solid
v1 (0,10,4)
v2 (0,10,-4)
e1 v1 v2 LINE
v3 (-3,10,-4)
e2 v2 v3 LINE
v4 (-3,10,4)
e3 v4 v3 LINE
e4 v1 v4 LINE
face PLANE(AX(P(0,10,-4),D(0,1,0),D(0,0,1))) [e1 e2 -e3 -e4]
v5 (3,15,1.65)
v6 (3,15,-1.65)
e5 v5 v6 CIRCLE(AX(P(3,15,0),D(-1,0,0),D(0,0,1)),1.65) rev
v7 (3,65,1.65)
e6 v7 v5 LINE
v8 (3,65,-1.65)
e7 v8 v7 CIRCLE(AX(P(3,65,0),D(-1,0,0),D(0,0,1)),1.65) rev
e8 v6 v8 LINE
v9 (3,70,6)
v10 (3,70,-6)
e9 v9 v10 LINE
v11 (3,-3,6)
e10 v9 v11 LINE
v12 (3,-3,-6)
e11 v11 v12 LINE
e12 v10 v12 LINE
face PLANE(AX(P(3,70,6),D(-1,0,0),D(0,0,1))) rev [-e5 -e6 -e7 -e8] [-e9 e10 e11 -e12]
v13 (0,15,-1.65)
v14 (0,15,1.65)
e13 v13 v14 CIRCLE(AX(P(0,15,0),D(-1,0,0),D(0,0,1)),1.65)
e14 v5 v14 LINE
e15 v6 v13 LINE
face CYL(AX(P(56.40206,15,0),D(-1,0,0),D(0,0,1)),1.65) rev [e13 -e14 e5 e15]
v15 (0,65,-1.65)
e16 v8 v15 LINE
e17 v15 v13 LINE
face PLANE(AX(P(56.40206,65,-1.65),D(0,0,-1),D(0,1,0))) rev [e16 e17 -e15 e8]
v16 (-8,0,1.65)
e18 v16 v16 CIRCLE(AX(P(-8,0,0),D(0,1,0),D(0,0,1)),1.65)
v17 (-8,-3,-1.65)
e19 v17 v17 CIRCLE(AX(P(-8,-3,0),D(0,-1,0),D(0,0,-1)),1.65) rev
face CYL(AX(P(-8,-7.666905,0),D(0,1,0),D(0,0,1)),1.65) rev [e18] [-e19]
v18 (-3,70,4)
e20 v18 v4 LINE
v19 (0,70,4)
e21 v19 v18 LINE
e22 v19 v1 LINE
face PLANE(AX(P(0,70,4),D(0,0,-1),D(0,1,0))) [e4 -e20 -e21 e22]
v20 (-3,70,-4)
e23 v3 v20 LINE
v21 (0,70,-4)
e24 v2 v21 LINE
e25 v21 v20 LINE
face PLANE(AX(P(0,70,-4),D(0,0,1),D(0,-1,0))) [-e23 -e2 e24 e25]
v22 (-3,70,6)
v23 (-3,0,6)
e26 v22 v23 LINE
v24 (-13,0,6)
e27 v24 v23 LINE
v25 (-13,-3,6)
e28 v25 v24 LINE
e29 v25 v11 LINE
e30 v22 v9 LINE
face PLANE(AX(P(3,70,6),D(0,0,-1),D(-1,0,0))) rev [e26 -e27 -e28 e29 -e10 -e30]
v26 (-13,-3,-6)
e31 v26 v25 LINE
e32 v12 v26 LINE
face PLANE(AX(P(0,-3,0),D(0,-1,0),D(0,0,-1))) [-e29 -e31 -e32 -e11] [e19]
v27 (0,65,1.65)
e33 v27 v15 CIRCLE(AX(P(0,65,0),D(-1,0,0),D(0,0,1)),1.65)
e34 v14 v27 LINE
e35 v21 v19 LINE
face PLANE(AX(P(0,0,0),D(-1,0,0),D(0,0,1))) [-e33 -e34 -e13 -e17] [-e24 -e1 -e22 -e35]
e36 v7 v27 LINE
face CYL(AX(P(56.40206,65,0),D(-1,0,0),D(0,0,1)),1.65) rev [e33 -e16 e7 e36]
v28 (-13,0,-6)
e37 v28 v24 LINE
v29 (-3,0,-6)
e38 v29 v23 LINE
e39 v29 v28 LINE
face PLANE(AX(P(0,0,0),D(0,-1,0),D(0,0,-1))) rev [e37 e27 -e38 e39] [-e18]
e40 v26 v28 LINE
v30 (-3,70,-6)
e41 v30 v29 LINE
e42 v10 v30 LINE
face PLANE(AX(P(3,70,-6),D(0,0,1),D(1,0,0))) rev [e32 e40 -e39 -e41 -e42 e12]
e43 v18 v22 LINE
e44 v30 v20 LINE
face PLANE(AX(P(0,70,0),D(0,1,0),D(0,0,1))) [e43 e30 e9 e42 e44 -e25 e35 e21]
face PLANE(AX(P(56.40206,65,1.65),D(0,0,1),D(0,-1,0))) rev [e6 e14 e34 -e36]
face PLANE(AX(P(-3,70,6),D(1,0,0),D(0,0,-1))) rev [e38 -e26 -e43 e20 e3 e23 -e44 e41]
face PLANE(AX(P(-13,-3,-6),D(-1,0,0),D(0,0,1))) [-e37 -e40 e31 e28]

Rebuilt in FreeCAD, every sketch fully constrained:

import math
import FreeCAD as App
import Part
import Sketcher

V = App.Vector


def add_polygon(sketch, points):
    """Adds a closed chain of lines whose ends are joined by coincident constraints."""
    first, n = sketch.GeometryCount, len(points)
    for a, b in zip(points, points[1:] + points[:1]):
        sketch.addGeometry(Part.LineSegment(App.Vector(*a, 0), App.Vector(*b, 0)), False)
    for i in range(n):
        sketch.addConstraint(Sketcher.Constraint("Coincident", first + i, 2, first + (i + 1) % n, 1))

doc = App.newDocument("Part")
body = doc.addObject("PartDesign::Body", "Body")

# Sketch on XZ plane
sketch1 = doc.addObject("Sketcher::SketchObject", "Sketch")
body.addObject(sketch1)
sketch1.AttachmentSupport = (doc.XZ_Plane, [""])
sketch1.MapMode = "FlatFace"
add_polygon(sketch1, [(-3, -6), (-3, 6), (3, 6), (3, -6)])  # lines 0-3
sketch1.addConstraint([
    Sketcher.Constraint("Vertical", 0),
    Sketcher.Constraint("Horizontal", 1),
    Sketcher.Constraint("Vertical", 2),
    Sketcher.Constraint("Horizontal", 3),
    Sketcher.Constraint("Symmetric", 0, 2, 2, 2, -1, 1),
    Sketcher.Constraint("DistanceX", 1, 1, 1, 2, 6.0),
    Sketcher.Constraint("DistanceY", 0, 1, 0, 2, 12.0),
])
pad1 = doc.addObject("PartDesign::Pad", "Pad")
body.addObject(pad1)
pad1.Profile = sketch1
pad1.Length = 70
pad1.Reversed = True

# Sketch on XZ plane
sketch2 = doc.addObject("Sketcher::SketchObject", "Sketch001")
body.addObject(sketch2)
sketch2.AttachmentSupport = (doc.XZ_Plane, [""])
sketch2.MapMode = "FlatFace"
add_polygon(sketch2, [(-13, -6), (-13, 6), (3, 6), (3, -6)])  # lines 0-3
sketch2.addConstraint([
    Sketcher.Constraint("Vertical", 0),
    Sketcher.Constraint("Horizontal", 1),
    Sketcher.Constraint("Vertical", 2),
    Sketcher.Constraint("Horizontal", 3),
    Sketcher.Constraint("DistanceX", 1, 1, 1, 2, 16.0),
    Sketcher.Constraint("DistanceY", 0, 1, 0, 2, 12.0),
    Sketcher.Constraint("DistanceX", 0, 2, -1, 1, 13.0),
    Sketcher.Constraint("DistanceY", -1, 1, 0, 2, 6.0),
])
pad2 = doc.addObject("PartDesign::Pad", "Pad001")
body.addObject(pad2)
pad2.Profile = sketch2
pad2.Length = 3

# Sketch on XZ plane
sketch3 = doc.addObject("Sketcher::SketchObject", "Sketch002")
body.addObject(sketch3)
sketch3.AttachmentSupport = (doc.XZ_Plane, [""])
sketch3.MapMode = "FlatFace"
sketch3.addGeometry(Part.Circle(V(-8, 0, 0), V(0, 0, 1), 1.6), False)
sketch3.addConstraint([
    Sketcher.Constraint("PointOnObject", 0, 3, -1),
    Sketcher.Constraint("Diameter", 0, 3.3),
    Sketcher.Constraint("DistanceX", 0, 3, -1, 1, 8.0),
])
pocket1 = doc.addObject("PartDesign::Pocket", "Pocket")
body.addObject(pocket1)
pocket1.Profile = sketch3
pocket1.Length = 3
pocket1.Reversed = True

# Sketch on YZ plane
sketch4 = doc.addObject("Sketcher::SketchObject", "Sketch003")
body.addObject(sketch4)
sketch4.AttachmentSupport = (doc.YZ_Plane, [""])
sketch4.MapMode = "FlatFace"
sketch4.AttachmentOffset = App.Placement(V(0, 0, -3), App.Rotation())
add_polygon(sketch4, [(70, 4), (10, 4), (10, -4), (70, -4)])  # lines 0-3
sketch4.addConstraint([
    Sketcher.Constraint("Horizontal", 0),
    Sketcher.Constraint("Vertical", 1),
    Sketcher.Constraint("Horizontal", 2),
    Sketcher.Constraint("Vertical", 3),
    Sketcher.Constraint("DistanceX", 0, 2, 0, 1, 60.0),
    Sketcher.Constraint("DistanceY", 1, 2, 1, 1, 8.0),
    Sketcher.Constraint("DistanceX", -1, 1, 0, 2, 10.0),
    Sketcher.Constraint("DistanceY", -1, 1, 0, 2, 4.0),
])
pocket2 = doc.addObject("PartDesign::Pocket", "Pocket001")
body.addObject(pocket2)
pocket2.Profile = sketch4
pocket2.Length = 3
pocket2.Reversed = True

# Sketch on YZ plane
sketch5 = doc.addObject("Sketcher::SketchObject", "Sketch004")
body.addObject(sketch5)
sketch5.AttachmentSupport = (doc.YZ_Plane, [""])
sketch5.MapMode = "FlatFace"
sketch5.addGeometry([
    Part.LineSegment(V(15, 1.6, 0), V(65, 1.6, 0)),
    Part.ArcOfCircle(Part.Circle(V(65, 0, 0), V(0, 0, 1), 1.6), math.radians(-90), math.radians(90)),
    Part.LineSegment(V(65, -1.6, 0), V(15, -1.6, 0)),
    Part.ArcOfCircle(Part.Circle(V(15, 0, 0), V(0, 0, 1), 1.6), math.radians(90), math.radians(270)),
], False)
sketch5.addConstraint([
    Sketcher.Constraint("Tangent", 0, 2, 1, 2),
    Sketcher.Constraint("Tangent", 1, 1, 2, 1),
    Sketcher.Constraint("Tangent", 2, 2, 3, 2),
    Sketcher.Constraint("Tangent", 3, 1, 0, 1),
    Sketcher.Constraint("Horizontal", 0),
    Sketcher.Constraint("Horizontal", 2),
    Sketcher.Constraint("PointOnObject", 1, 3, -1),
    Sketcher.Constraint("DistanceX", 0, 1, 0, 2, 50.0),
    Sketcher.Constraint("Radius", 1, 1.65),
    Sketcher.Constraint("DistanceX", -1, 1, 1, 3, 65.0),
])
pocket3 = doc.addObject("PartDesign::Pocket", "Pocket002")
body.addObject(pocket3)
pocket3.Profile = sketch5
pocket3.Length = 3
pocket3.Reversed = True

doc.recompute()
